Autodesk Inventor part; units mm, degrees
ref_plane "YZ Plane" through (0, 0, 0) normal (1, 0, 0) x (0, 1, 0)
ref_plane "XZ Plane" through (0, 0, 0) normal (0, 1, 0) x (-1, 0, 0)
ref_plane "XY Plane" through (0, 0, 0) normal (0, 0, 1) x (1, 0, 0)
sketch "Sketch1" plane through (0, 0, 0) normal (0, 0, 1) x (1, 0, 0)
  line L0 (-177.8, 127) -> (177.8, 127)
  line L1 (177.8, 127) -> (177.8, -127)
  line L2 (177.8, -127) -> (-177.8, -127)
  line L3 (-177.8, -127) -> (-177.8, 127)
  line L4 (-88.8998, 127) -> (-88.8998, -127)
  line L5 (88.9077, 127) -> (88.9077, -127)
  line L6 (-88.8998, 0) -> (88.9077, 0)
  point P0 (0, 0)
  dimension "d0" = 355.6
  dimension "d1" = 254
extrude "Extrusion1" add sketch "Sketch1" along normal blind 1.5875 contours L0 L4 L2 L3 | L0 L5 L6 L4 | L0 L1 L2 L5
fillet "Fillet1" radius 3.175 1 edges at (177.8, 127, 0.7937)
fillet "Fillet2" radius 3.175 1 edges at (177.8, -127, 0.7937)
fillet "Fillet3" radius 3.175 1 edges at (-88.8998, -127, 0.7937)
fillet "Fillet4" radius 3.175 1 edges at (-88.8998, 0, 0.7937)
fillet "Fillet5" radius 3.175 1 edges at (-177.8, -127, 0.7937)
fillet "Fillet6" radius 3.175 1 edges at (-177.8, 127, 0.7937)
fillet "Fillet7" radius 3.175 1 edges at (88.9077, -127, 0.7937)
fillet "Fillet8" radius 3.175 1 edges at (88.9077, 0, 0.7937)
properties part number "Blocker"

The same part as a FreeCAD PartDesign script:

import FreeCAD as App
import Part
import Sketcher

V = App.Vector
Q = App.Units.Quantity


def edges_at(feature, points):
    """Names of the edges that pass closest to the given points."""
    edges = feature.Shape.Edges
    near = lambda p: min(range(len(edges)), key=lambda i: edges[i].distToShape(Part.Vertex(*p))[0])
    return sorted({f"Edge{near(p) + 1}" for p in points})


def add_polygon(sketch, points):
    """Adds a closed chain of lines whose ends are joined by coincident constraints."""
    first, n = sketch.GeometryCount, len(points)
    for a, b in zip(points, points[1:] + points[:1]):
        sketch.addGeometry(Part.LineSegment(App.Vector(*a, 0), App.Vector(*b, 0)), False)
    for i in range(n):
        sketch.addConstraint(Sketcher.Constraint("Coincident", first + i, 2, first + (i + 1) % n, 1))

doc = App.newDocument("Part")
body = doc.addObject("PartDesign::Body", "Body")

# Sketch on XY plane
sketch1 = body.newObject("Sketcher::SketchObject", "Sketch")
sketch1.AttachmentSupport = (doc.getObject("XY_Plane"), [""])
sketch1.MapMode = "FlatFace"
add_polygon(sketch1, [(-177.8, 127), (-177.8, -127), (-88.8998, -127), (-88.8998, 0), (88.9077, 0), (88.9077, -127), (177.8, -127), (177.8, 127)])  # lines 0-7
sketch1.addConstraint([
    Sketcher.Constraint("Vertical", 0),
    Sketcher.Constraint("Horizontal", 1),
    Sketcher.Constraint("Vertical", 2),
    Sketcher.Constraint("Horizontal", 3),
    Sketcher.Constraint("Vertical", 4),
    Sketcher.Constraint("Horizontal", 5),
    Sketcher.Constraint("Vertical", 6),
    Sketcher.Constraint("Horizontal", 7),
    Sketcher.Constraint("Symmetric", 0, 2, 6, 2, -1, 1),
    Sketcher.Constraint("PointOnObject", 2, 2, -1),
    Sketcher.Constraint("Horizontal", 1, 2, 4, 2),
    Sketcher.Constraint("DistanceX", 7, 2, 7, 1, Q("14 in")),
    Sketcher.Constraint("DistanceY", 0, 2, 0, 1, Q("10 in")),
    Sketcher.Constraint("DistanceX", 1, 1, 1, 2, Q("3.5 in")),
    Sketcher.Constraint("DistanceX", 3, 1, 3, 2, Q("7.0003 in")),
])
pad1 = body.newObject("PartDesign::Pad", "Pad")
pad1.Profile = sketch1
pad1.Length = Q("0.0625 in")
doc.recompute()

fillet = body.newObject("PartDesign::Fillet", "Fillet")
fillet.Base = (pad1, edges_at(pad1, [(177.8, 127, 0.794)]))
fillet.Radius = Q("0.125 in")
doc.recompute()

fillet2 = body.newObject("PartDesign::Fillet", "Fillet001")
fillet2.Base = (fillet, edges_at(fillet, [(177.8, -127, 0.794)]))
fillet2.Radius = Q("0.125 in")
doc.recompute()

fillet3 = body.newObject("PartDesign::Fillet", "Fillet002")
fillet3.Base = (fillet2, edges_at(fillet2, [(-88.9, -127, 0.794)]))
fillet3.Radius = Q("0.125 in")
doc.recompute()

fillet4 = body.newObject("PartDesign::Fillet", "Fillet003")
fillet4.Base = (fillet3, edges_at(fillet3, [(-88.9, 0, 0.794)]))
fillet4.Radius = Q("0.125 in")
doc.recompute()

fillet5 = body.newObject("PartDesign::Fillet", "Fillet004")
fillet5.Base = (fillet4, edges_at(fillet4, [(-177.8, -127, 0.794)]))
fillet5.Radius = Q("0.125 in")
doc.recompute()

fillet6 = body.newObject("PartDesign::Fillet", "Fillet005")
fillet6.Base = (fillet5, edges_at(fillet5, [(-177.8, 127, 0.794)]))
fillet6.Radius = Q("0.125 in")
doc.recompute()

fillet7 = body.newObject("PartDesign::Fillet", "Fillet006")
fillet7.Base = (fillet6, edges_at(fillet6, [(88.908, -127, 0.794)]))
fillet7.Radius = Q("0.125 in")
doc.recompute()

fillet8 = body.newObject("PartDesign::Fillet", "Fillet007")
fillet8.Base = (fillet7, edges_at(fillet7, [(88.908, 0, 0.794)]))
fillet8.Radius = Q("0.125 in")

doc.recompute()
